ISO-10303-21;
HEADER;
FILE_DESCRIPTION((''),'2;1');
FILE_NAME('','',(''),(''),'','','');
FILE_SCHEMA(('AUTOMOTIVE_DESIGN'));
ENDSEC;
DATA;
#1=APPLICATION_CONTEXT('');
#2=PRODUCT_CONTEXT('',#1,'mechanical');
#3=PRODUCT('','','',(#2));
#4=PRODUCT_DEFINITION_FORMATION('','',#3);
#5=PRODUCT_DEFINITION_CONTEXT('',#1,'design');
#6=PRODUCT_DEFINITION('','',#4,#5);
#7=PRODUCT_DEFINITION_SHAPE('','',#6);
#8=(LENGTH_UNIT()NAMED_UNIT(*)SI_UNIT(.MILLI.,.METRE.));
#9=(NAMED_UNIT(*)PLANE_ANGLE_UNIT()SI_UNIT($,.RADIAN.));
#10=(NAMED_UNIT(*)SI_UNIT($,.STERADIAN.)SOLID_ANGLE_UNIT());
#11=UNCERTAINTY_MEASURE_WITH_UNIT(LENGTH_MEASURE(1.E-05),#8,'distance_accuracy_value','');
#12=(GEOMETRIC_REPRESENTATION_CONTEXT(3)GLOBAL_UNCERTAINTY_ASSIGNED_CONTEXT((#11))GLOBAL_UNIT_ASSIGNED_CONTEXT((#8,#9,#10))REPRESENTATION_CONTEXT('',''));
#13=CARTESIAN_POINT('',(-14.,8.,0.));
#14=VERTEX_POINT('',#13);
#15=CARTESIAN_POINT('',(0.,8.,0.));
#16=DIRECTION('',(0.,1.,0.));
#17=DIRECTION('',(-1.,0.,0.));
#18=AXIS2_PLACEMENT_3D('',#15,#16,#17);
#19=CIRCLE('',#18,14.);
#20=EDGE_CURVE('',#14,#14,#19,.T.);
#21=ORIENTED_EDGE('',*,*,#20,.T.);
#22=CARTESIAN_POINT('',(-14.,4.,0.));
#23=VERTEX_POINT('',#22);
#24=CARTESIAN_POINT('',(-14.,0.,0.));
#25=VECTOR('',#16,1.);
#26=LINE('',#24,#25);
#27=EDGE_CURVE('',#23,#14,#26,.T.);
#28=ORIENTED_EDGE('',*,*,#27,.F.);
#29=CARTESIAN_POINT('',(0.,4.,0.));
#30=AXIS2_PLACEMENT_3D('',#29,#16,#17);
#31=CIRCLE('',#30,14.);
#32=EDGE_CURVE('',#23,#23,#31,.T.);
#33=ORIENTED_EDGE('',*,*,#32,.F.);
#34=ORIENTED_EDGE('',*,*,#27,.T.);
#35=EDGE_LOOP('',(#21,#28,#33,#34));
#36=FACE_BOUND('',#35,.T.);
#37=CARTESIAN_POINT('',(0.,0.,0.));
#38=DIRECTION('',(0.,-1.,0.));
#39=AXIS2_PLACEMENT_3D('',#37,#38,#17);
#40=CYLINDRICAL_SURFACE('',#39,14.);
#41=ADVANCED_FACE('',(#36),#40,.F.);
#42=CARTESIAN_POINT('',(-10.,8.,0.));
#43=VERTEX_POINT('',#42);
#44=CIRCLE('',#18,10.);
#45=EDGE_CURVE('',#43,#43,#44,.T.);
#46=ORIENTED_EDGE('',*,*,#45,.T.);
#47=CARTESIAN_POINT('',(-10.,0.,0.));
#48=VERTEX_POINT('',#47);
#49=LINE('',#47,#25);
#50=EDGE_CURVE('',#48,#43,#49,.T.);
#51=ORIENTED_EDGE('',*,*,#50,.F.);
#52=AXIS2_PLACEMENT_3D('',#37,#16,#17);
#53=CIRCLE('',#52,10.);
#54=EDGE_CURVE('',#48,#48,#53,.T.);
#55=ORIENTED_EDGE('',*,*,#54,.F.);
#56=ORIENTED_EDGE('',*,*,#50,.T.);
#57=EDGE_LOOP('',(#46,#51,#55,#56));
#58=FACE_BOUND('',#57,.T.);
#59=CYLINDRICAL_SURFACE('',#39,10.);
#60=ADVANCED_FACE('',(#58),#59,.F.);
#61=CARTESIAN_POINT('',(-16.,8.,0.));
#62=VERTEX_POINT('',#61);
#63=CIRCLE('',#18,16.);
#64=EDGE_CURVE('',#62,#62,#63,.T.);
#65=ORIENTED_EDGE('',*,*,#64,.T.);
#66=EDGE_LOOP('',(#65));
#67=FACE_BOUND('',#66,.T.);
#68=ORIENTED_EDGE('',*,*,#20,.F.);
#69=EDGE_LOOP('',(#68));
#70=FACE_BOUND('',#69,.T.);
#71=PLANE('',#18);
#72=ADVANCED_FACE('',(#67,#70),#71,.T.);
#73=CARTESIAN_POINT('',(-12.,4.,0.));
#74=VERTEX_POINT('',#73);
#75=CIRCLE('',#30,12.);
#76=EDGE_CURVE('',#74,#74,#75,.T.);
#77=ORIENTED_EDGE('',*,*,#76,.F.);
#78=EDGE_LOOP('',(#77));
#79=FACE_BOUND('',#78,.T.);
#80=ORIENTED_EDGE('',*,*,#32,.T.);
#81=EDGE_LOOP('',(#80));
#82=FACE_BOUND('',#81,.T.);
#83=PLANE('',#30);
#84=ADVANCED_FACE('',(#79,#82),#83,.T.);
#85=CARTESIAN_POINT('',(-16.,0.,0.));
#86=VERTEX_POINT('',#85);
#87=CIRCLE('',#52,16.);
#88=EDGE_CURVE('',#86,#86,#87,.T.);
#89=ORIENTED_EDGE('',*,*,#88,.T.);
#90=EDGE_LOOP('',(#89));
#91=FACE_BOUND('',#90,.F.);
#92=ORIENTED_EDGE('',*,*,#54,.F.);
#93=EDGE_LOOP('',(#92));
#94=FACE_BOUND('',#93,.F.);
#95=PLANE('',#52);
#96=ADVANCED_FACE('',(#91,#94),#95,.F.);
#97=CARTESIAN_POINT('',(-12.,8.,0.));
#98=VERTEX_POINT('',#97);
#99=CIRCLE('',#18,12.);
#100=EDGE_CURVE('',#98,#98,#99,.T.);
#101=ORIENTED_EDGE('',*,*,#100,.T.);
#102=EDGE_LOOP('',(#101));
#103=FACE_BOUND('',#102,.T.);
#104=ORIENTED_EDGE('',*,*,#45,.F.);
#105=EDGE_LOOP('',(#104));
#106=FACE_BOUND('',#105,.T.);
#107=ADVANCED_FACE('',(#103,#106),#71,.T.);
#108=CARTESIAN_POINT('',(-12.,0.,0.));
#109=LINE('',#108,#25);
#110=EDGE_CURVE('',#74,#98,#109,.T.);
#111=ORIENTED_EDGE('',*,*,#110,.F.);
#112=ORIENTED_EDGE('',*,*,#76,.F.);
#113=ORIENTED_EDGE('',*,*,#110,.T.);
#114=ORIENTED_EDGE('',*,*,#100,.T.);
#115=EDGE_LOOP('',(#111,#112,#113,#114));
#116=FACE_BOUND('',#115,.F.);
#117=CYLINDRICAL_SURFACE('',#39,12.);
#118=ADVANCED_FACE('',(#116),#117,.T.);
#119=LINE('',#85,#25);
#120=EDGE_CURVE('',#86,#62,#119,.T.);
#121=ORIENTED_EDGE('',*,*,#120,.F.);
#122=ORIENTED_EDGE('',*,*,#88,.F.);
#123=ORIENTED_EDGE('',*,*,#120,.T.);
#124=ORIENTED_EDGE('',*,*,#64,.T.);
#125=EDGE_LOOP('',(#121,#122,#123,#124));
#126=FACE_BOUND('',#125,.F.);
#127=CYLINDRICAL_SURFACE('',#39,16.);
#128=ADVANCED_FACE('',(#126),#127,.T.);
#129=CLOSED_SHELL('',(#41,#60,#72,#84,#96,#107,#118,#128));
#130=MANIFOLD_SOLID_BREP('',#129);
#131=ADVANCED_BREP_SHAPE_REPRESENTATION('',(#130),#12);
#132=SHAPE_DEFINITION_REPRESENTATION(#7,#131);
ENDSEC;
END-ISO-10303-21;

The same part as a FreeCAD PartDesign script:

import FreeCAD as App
import Part
import Sketcher

doc = App.newDocument("Part")
body = doc.addObject("PartDesign::Body", "Body")
body.AllowCompound = True

# Sketch on XZ plane
sketch1 = body.newObject("Sketcher::SketchObject", "Sketch")
sketch1.AttachmentSupport = (doc.getObject("XZ_Plane"), [""])
sketch1.MapMode = "FlatFace"
sketch1.addGeometry([
    Part.Circle(App.Vector(0, 0, 0), App.Vector(0, 0, 1), 12),
    Part.Circle(App.Vector(0, 0, 0), App.Vector(0, 0, 1), 10),
    Part.Circle(App.Vector(0, 0, 0), App.Vector(0, 0, 1), 16),
    Part.Circle(App.Vector(0, 0, 0), App.Vector(0, 0, 1), 14),
], False)
sketch1.addConstraint([
    Sketcher.Constraint("Coincident", 0, 3, -1, 1),
    Sketcher.Constraint("Coincident", 1, 3, -1, 1),
    Sketcher.Constraint("Coincident", 2, 3, -1, 1),
    Sketcher.Constraint("Coincident", 3, 3, -1, 1),
    Sketcher.Constraint("Diameter", 0, 24.0),
    Sketcher.Constraint("Diameter", 1, 20.0),
    Sketcher.Constraint("Diameter", 2, 32.0),
    Sketcher.Constraint("Diameter", 3, 28.0),
])
pad1 = body.newObject("PartDesign::Pad", "Pad")
pad1.Profile = sketch1
pad1.Length = 8
pad1.Reversed = True

# Sketch on XZ plane
sketch2 = body.newObject("Sketcher::SketchObject", "Sketch001")
sketch2.AttachmentSupport = (doc.getObject("XZ_Plane"), [""])
sketch2.MapMode = "FlatFace"
sketch2.addGeometry([
    Part.Circle(App.Vector(0, 0, 0), App.Vector(0, 0, 1), 14),
    Part.Circle(App.Vector(0, 0, 0), App.Vector(0, 0, 1), 12),
], False)
sketch2.addConstraint([
    Sketcher.Constraint("Coincident", 0, 3, -1, 1),
    Sketcher.Constraint("Coincident", 1, 3, -1, 1),
    Sketcher.Constraint("Diameter", 0, 28.0),
    Sketcher.Constraint("Diameter", 1, 24.0),
])
pad2 = body.newObject("PartDesign::Pad", "Pad001")
pad2.Profile = sketch2
pad2.Length = 4
pad2.Reversed = True

doc.recompute()
